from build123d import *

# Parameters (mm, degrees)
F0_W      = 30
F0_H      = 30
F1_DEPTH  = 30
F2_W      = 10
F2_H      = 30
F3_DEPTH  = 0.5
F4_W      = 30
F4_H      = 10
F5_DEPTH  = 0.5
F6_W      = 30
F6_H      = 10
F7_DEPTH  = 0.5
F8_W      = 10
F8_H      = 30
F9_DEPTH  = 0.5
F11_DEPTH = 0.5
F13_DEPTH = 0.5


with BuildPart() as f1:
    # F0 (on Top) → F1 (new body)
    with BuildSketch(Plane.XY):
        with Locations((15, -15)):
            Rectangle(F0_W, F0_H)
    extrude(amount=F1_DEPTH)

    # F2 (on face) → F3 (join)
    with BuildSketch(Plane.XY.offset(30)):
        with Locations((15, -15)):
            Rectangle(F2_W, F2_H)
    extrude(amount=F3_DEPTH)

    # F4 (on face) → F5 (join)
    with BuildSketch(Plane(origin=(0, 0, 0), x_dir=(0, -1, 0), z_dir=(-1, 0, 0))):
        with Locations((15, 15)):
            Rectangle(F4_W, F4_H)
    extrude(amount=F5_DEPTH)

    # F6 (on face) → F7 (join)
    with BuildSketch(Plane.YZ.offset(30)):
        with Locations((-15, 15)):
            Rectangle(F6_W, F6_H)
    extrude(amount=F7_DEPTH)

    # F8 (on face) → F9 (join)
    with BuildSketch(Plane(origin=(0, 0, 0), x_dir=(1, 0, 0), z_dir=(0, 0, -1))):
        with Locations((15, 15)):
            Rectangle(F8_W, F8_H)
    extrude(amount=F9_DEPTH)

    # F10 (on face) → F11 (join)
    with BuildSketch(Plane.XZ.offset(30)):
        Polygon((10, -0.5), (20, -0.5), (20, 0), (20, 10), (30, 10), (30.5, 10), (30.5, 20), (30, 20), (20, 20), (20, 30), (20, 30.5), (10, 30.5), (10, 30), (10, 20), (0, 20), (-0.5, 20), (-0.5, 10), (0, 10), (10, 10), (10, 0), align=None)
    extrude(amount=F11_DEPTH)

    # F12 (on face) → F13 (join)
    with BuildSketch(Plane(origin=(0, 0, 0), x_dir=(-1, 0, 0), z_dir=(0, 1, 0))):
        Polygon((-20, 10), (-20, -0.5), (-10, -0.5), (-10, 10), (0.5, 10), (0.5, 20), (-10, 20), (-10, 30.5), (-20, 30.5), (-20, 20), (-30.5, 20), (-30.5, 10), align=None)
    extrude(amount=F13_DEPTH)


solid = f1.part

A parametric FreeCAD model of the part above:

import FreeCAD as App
import Part
import Sketcher


def add_polygon(sketch, points):
    """Adds a closed chain of lines whose ends are joined by coincident constraints."""
    first, n = sketch.GeometryCount, len(points)
    for a, b in zip(points, points[1:] + points[:1]):
        sketch.addGeometry(Part.LineSegment(App.Vector(*a, 0), App.Vector(*b, 0)), False)
    for i in range(n):
        sketch.addConstraint(Sketcher.Constraint("Coincident", first + i, 2, first + (i + 1) % n, 1))

doc = App.newDocument("Part")
body = doc.addObject("PartDesign::Body", "Body")

sketch1 = doc.addObject("Sketcher::SketchObject", "Sketch")
body.addObject(sketch1)
sketch1.AttachmentSupport = (doc.XY_Plane, [""])
sketch1.MapMode = "FlatFace"
add_polygon(sketch1, [(0, 0), (0, -30), (30, -30), (30, 0)])
sketch1.addConstraint(Sketcher.Constraint("Vertical", 0))
sketch1.addConstraint(Sketcher.Constraint("Horizontal", 1))
sketch1.addConstraint(Sketcher.Constraint("Vertical", 2))
sketch1.addConstraint(Sketcher.Constraint("Horizontal", 3))
sketch1.addConstraint(Sketcher.Constraint("Coincident", 3, 2, -1, 1))
sketch1.addConstraint(Sketcher.Constraint("Equal", 3, 0))
sketch1.addConstraint(Sketcher.Constraint("DistanceX", 1, 1, 1, 2, 30.0))
pad1 = doc.addObject("PartDesign::Pad", "Pad")
body.addObject(pad1)
pad1.Profile = sketch1
pad1.Length = 30

sketch2 = doc.addObject("Sketcher::SketchObject", "Sketch001")
body.addObject(sketch2)
sketch2.AttachmentSupport = (doc.XY_Plane, [""])
sketch2.MapMode = "FlatFace"
sketch2.AttachmentOffset = App.Placement(App.Vector(0, 0, 30), App.Rotation())
add_polygon(sketch2, [(10, 0), (10, -30), (20, -30), (20, 0)])
sketch2.addConstraint(Sketcher.Constraint("Vertical", 0))
sketch2.addConstraint(Sketcher.Constraint("Horizontal", 1))
sketch2.addConstraint(Sketcher.Constraint("Vertical", 2))
sketch2.addConstraint(Sketcher.Constraint("Horizontal", 3))
sketch2.addConstraint(Sketcher.Constraint("PointOnObject", 2, 2, -1))
sketch2.addConstraint(Sketcher.Constraint("DistanceX", 1, 1, 1, 2, 10.0))
sketch2.addConstraint(Sketcher.Constraint("DistanceY", 0, 2, 0, 1, 30.0))
sketch2.addConstraint(Sketcher.Constraint("DistanceX", -1, 1, 0, 2, 10.0))
pad2 = doc.addObject("PartDesign::Pad", "Pad001")
body.addObject(pad2)
pad2.Profile = sketch2
pad2.Length = 0.5

sketch3 = doc.addObject("Sketcher::SketchObject", "Sketch002")
body.addObject(sketch3)
sketch3.AttachmentSupport = (doc.YZ_Plane, [""])
sketch3.MapMode = "FlatFace"
add_polygon(sketch3, [(0, 20), (0, 10), (-30, 10), (-30, 20)])
sketch3.addConstraint(Sketcher.Constraint("Vertical", 0))
sketch3.addConstraint(Sketcher.Constraint("Horizontal", 1))
sketch3.addConstraint(Sketcher.Constraint("Vertical", 2))
sketch3.addConstraint(Sketcher.Constraint("Horizontal", 3))
sketch3.addConstraint(Sketcher.Constraint("PointOnObject", 0, 2, -2))
sketch3.addConstraint(Sketcher.Constraint("DistanceX", 1, 2, 1, 1, 30.0))
sketch3.addConstraint(Sketcher.Constraint("DistanceY", 0, 2, 0, 1, 10.0))
sketch3.addConstraint(Sketcher.Constraint("DistanceY", -1, 1, 0, 2, 10.0))
pad3 = doc.addObject("PartDesign::Pad", "Pad002")
body.addObject(pad3)
pad3.Profile = sketch3
pad3.Length = 0.5
pad3.Reversed = True

sketch4 = doc.addObject("Sketcher::SketchObject", "Sketch003")
body.addObject(sketch4)
sketch4.AttachmentSupport = (doc.YZ_Plane, [""])
sketch4.MapMode = "FlatFace"
sketch4.AttachmentOffset = App.Placement(App.Vector(0, 0, 30), App.Rotation())
add_polygon(sketch4, [(-30, 20), (-30, 10), (0, 10), (0, 20)])
sketch4.addConstraint(Sketcher.Constraint("Vertical", 0))
sketch4.addConstraint(Sketcher.Constraint("Horizontal", 1))
sketch4.addConstraint(Sketcher.Constraint("Vertical", 2))
sketch4.addConstraint(Sketcher.Constraint("Horizontal", 3))
sketch4.addConstraint(Sketcher.Constraint("PointOnObject", 1, 2, -2))
sketch4.addConstraint(Sketcher.Constraint("DistanceX", 1, 1, 1, 2, 30.0))
sketch4.addConstraint(Sketcher.Constraint("DistanceY", 0, 2, 0, 1, 10.0))
sketch4.addConstraint(Sketcher.Constraint("DistanceY", -1, 1, 0, 2, 10.0))
pad4 = doc.addObject("PartDesign::Pad", "Pad003")
body.addObject(pad4)
pad4.Profile = sketch4
pad4.Length = 0.5

sketch5 = doc.addObject("Sketcher::SketchObject", "Sketch004")
body.addObject(sketch5)
sketch5.AttachmentSupport = (doc.XY_Plane, [""])
sketch5.MapMode = "FlatFace"
add_polygon(sketch5, [(10, -30), (10, 0), (20, 0), (20, -30)])
sketch5.addConstraint(Sketcher.Constraint("Vertical", 0))
sketch5.addConstraint(Sketcher.Constraint("Horizontal", 1))
sketch5.addConstraint(Sketcher.Constraint("Vertical", 2))
sketch5.addConstraint(Sketcher.Constraint("Horizontal", 3))
sketch5.addConstraint(Sketcher.Constraint("PointOnObject", 0, 2, -1))
sketch5.addConstraint(Sketcher.Constraint("DistanceX", 1, 1, 1, 2, 10.0))
sketch5.addConstraint(Sketcher.Constraint("DistanceY", 0, 1, 0, 2, 30.0))
sketch5.addConstraint(Sketcher.Constraint("DistanceX", -1, 1, 0, 2, 10.0))
pad5 = doc.addObject("PartDesign::Pad", "Pad004")
body.addObject(pad5)
pad5.Profile = sketch5
pad5.Length = 0.5
pad5.Reversed = True

sketch6 = doc.addObject("Sketcher::SketchObject", "Sketch005")
body.addObject(sketch6)
sketch6.AttachmentSupport = (doc.XZ_Plane, [""])
sketch6.MapMode = "FlatFace"
sketch6.AttachmentOffset = App.Placement(App.Vector(0, 0, 30), App.Rotation())
add_polygon(sketch6, [(10, -0.5), (20, -0.5), (20, 10), (30.5, 10), (30.5, 20), (20, 20), (20, 30.5), (10, 30.5), (10, 20), (-0.5, 20), (-0.5, 10), (10, 10)])
sketch6.addConstraint(Sketcher.Constraint("Horizontal", 0))
sketch6.addConstraint(Sketcher.Constraint("Vertical", 1))
sketch6.addConstraint(Sketcher.Constraint("Horizontal", 2))
sketch6.addConstraint(Sketcher.Constraint("Vertical", 3))
sketch6.addConstraint(Sketcher.Constraint("Horizontal", 4))
sketch6.addConstraint(Sketcher.Constraint("Vertical", 5))
sketch6.addConstraint(Sketcher.Constraint("Horizontal", 6))
sketch6.addConstraint(Sketcher.Constraint("Vertical", 7))
sketch6.addConstraint(Sketcher.Constraint("Horizontal", 8))
sketch6.addConstraint(Sketcher.Constraint("Vertical", 9))
sketch6.addConstraint(Sketcher.Constraint("Horizontal", 10))
sketch6.addConstraint(Sketcher.Constraint("Vertical", 11))
sketch6.addConstraint(Sketcher.Constraint("Horizontal", 4, 2, 7, 2))
sketch6.addConstraint(Sketcher.Constraint("Horizontal", 2, 2, 9, 2))
sketch6.addConstraint(Sketcher.Constraint("Vertical", 1, 2, 4, 2))
sketch6.addConstraint(Sketcher.Constraint("Vertical", 7, 2, 10, 2))
sketch6.addConstraint(Sketcher.Constraint("Equal", 4, 8))
sketch6.addConstraint(Sketcher.Constraint("Equal", 10, 1))
sketch6.addConstraint(Sketcher.Constraint("Equal", 6, 3))
sketch6.addConstraint(Sketcher.Constraint("Equal", 1, 5))
sketch6.addConstraint(Sketcher.Constraint("DistanceX", 0, 1, 0, 2, 10.0))
sketch6.addConstraint(Sketcher.Constraint("DistanceX", 2, 1, 2, 2, 10.5))
sketch6.addConstraint(Sketcher.Constraint("DistanceX", -1, 1, 0, 2, 20.0))
sketch6.addConstraint(Sketcher.Constraint("DistanceY", -1, 1, 1, 2, 10.0))
pad6 = doc.addObject("PartDesign::Pad", "Pad005")
body.addObject(pad6)
pad6.Profile = sketch6
pad6.Length = 0.5

sketch7 = doc.addObject("Sketcher::SketchObject", "Sketch006")
body.addObject(sketch7)
sketch7.AttachmentSupport = (doc.XZ_Plane, [""])
sketch7.MapMode = "FlatFace"
add_polygon(sketch7, [(20, 10), (20, -0.5), (10, -0.5), (10, 10), (-0.5, 10), (-0.5, 20), (10, 20), (10, 30.5), (20, 30.5), (20, 20), (30.5, 20), (30.5, 10)])
sketch7.addConstraint(Sketcher.Constraint("Vertical", 0))
sketch7.addConstraint(Sketcher.Constraint("Horizontal", 1))
sketch7.addConstraint(Sketcher.Constraint("Vertical", 2))
sketch7.addConstraint(Sketcher.Constraint("Horizontal", 3))
sketch7.addConstraint(Sketcher.Constraint("Vertical", 4))
sketch7.addConstraint(Sketcher.Constraint("Horizontal", 5))
sketch7.addConstraint(Sketcher.Constraint("Vertical", 6))
sketch7.addConstraint(Sketcher.Constraint("Horizontal", 7))
sketch7.addConstraint(Sketcher.Constraint("Vertical", 8))
sketch7.addConstraint(Sketcher.Constraint("Horizontal", 9))
sketch7.addConstraint(Sketcher.Constraint("Vertical", 10))
sketch7.addConstraint(Sketcher.Constraint("Horizontal", 11))
sketch7.addConstraint(Sketcher.Constraint("Horizontal", 5, 2, 8, 2))
sketch7.addConstraint(Sketcher.Constraint("Horizontal", 3, 2, 10, 2))
sketch7.addConstraint(Sketcher.Constraint("Vertical", 2, 2, 5, 2))
sketch7.addConstraint(Sketcher.Constraint("Vertical", 0, 2, 7, 2))
sketch7.addConstraint(Sketcher.Constraint("Equal", 5, 9))
sketch7.addConstraint(Sketcher.Constraint("Equal", 11, 0))
sketch7.addConstraint(Sketcher.Constraint("Equal", 7, 4))
sketch7.addConstraint(Sketcher.Constraint("Equal", 2, 6))
sketch7.addConstraint(Sketcher.Constraint("DistanceX", 1, 2, 1, 1, 10.0))
sketch7.addConstraint(Sketcher.Constraint("DistanceX", 3, 2, 3, 1, 10.5))
sketch7.addConstraint(Sketcher.Constraint("DistanceX", -1, 1, 0, 2, 20.0))
sketch7.addConstraint(Sketcher.Constraint("DistanceY", -1, 1, 2, 2, 10.0))
pad7 = doc.addObject("PartDesign::Pad", "Pad006")
body.addObject(pad7)
pad7.Profile = sketch7
pad7.Length = 0.5
pad7.Reversed = True

doc.recompute()
